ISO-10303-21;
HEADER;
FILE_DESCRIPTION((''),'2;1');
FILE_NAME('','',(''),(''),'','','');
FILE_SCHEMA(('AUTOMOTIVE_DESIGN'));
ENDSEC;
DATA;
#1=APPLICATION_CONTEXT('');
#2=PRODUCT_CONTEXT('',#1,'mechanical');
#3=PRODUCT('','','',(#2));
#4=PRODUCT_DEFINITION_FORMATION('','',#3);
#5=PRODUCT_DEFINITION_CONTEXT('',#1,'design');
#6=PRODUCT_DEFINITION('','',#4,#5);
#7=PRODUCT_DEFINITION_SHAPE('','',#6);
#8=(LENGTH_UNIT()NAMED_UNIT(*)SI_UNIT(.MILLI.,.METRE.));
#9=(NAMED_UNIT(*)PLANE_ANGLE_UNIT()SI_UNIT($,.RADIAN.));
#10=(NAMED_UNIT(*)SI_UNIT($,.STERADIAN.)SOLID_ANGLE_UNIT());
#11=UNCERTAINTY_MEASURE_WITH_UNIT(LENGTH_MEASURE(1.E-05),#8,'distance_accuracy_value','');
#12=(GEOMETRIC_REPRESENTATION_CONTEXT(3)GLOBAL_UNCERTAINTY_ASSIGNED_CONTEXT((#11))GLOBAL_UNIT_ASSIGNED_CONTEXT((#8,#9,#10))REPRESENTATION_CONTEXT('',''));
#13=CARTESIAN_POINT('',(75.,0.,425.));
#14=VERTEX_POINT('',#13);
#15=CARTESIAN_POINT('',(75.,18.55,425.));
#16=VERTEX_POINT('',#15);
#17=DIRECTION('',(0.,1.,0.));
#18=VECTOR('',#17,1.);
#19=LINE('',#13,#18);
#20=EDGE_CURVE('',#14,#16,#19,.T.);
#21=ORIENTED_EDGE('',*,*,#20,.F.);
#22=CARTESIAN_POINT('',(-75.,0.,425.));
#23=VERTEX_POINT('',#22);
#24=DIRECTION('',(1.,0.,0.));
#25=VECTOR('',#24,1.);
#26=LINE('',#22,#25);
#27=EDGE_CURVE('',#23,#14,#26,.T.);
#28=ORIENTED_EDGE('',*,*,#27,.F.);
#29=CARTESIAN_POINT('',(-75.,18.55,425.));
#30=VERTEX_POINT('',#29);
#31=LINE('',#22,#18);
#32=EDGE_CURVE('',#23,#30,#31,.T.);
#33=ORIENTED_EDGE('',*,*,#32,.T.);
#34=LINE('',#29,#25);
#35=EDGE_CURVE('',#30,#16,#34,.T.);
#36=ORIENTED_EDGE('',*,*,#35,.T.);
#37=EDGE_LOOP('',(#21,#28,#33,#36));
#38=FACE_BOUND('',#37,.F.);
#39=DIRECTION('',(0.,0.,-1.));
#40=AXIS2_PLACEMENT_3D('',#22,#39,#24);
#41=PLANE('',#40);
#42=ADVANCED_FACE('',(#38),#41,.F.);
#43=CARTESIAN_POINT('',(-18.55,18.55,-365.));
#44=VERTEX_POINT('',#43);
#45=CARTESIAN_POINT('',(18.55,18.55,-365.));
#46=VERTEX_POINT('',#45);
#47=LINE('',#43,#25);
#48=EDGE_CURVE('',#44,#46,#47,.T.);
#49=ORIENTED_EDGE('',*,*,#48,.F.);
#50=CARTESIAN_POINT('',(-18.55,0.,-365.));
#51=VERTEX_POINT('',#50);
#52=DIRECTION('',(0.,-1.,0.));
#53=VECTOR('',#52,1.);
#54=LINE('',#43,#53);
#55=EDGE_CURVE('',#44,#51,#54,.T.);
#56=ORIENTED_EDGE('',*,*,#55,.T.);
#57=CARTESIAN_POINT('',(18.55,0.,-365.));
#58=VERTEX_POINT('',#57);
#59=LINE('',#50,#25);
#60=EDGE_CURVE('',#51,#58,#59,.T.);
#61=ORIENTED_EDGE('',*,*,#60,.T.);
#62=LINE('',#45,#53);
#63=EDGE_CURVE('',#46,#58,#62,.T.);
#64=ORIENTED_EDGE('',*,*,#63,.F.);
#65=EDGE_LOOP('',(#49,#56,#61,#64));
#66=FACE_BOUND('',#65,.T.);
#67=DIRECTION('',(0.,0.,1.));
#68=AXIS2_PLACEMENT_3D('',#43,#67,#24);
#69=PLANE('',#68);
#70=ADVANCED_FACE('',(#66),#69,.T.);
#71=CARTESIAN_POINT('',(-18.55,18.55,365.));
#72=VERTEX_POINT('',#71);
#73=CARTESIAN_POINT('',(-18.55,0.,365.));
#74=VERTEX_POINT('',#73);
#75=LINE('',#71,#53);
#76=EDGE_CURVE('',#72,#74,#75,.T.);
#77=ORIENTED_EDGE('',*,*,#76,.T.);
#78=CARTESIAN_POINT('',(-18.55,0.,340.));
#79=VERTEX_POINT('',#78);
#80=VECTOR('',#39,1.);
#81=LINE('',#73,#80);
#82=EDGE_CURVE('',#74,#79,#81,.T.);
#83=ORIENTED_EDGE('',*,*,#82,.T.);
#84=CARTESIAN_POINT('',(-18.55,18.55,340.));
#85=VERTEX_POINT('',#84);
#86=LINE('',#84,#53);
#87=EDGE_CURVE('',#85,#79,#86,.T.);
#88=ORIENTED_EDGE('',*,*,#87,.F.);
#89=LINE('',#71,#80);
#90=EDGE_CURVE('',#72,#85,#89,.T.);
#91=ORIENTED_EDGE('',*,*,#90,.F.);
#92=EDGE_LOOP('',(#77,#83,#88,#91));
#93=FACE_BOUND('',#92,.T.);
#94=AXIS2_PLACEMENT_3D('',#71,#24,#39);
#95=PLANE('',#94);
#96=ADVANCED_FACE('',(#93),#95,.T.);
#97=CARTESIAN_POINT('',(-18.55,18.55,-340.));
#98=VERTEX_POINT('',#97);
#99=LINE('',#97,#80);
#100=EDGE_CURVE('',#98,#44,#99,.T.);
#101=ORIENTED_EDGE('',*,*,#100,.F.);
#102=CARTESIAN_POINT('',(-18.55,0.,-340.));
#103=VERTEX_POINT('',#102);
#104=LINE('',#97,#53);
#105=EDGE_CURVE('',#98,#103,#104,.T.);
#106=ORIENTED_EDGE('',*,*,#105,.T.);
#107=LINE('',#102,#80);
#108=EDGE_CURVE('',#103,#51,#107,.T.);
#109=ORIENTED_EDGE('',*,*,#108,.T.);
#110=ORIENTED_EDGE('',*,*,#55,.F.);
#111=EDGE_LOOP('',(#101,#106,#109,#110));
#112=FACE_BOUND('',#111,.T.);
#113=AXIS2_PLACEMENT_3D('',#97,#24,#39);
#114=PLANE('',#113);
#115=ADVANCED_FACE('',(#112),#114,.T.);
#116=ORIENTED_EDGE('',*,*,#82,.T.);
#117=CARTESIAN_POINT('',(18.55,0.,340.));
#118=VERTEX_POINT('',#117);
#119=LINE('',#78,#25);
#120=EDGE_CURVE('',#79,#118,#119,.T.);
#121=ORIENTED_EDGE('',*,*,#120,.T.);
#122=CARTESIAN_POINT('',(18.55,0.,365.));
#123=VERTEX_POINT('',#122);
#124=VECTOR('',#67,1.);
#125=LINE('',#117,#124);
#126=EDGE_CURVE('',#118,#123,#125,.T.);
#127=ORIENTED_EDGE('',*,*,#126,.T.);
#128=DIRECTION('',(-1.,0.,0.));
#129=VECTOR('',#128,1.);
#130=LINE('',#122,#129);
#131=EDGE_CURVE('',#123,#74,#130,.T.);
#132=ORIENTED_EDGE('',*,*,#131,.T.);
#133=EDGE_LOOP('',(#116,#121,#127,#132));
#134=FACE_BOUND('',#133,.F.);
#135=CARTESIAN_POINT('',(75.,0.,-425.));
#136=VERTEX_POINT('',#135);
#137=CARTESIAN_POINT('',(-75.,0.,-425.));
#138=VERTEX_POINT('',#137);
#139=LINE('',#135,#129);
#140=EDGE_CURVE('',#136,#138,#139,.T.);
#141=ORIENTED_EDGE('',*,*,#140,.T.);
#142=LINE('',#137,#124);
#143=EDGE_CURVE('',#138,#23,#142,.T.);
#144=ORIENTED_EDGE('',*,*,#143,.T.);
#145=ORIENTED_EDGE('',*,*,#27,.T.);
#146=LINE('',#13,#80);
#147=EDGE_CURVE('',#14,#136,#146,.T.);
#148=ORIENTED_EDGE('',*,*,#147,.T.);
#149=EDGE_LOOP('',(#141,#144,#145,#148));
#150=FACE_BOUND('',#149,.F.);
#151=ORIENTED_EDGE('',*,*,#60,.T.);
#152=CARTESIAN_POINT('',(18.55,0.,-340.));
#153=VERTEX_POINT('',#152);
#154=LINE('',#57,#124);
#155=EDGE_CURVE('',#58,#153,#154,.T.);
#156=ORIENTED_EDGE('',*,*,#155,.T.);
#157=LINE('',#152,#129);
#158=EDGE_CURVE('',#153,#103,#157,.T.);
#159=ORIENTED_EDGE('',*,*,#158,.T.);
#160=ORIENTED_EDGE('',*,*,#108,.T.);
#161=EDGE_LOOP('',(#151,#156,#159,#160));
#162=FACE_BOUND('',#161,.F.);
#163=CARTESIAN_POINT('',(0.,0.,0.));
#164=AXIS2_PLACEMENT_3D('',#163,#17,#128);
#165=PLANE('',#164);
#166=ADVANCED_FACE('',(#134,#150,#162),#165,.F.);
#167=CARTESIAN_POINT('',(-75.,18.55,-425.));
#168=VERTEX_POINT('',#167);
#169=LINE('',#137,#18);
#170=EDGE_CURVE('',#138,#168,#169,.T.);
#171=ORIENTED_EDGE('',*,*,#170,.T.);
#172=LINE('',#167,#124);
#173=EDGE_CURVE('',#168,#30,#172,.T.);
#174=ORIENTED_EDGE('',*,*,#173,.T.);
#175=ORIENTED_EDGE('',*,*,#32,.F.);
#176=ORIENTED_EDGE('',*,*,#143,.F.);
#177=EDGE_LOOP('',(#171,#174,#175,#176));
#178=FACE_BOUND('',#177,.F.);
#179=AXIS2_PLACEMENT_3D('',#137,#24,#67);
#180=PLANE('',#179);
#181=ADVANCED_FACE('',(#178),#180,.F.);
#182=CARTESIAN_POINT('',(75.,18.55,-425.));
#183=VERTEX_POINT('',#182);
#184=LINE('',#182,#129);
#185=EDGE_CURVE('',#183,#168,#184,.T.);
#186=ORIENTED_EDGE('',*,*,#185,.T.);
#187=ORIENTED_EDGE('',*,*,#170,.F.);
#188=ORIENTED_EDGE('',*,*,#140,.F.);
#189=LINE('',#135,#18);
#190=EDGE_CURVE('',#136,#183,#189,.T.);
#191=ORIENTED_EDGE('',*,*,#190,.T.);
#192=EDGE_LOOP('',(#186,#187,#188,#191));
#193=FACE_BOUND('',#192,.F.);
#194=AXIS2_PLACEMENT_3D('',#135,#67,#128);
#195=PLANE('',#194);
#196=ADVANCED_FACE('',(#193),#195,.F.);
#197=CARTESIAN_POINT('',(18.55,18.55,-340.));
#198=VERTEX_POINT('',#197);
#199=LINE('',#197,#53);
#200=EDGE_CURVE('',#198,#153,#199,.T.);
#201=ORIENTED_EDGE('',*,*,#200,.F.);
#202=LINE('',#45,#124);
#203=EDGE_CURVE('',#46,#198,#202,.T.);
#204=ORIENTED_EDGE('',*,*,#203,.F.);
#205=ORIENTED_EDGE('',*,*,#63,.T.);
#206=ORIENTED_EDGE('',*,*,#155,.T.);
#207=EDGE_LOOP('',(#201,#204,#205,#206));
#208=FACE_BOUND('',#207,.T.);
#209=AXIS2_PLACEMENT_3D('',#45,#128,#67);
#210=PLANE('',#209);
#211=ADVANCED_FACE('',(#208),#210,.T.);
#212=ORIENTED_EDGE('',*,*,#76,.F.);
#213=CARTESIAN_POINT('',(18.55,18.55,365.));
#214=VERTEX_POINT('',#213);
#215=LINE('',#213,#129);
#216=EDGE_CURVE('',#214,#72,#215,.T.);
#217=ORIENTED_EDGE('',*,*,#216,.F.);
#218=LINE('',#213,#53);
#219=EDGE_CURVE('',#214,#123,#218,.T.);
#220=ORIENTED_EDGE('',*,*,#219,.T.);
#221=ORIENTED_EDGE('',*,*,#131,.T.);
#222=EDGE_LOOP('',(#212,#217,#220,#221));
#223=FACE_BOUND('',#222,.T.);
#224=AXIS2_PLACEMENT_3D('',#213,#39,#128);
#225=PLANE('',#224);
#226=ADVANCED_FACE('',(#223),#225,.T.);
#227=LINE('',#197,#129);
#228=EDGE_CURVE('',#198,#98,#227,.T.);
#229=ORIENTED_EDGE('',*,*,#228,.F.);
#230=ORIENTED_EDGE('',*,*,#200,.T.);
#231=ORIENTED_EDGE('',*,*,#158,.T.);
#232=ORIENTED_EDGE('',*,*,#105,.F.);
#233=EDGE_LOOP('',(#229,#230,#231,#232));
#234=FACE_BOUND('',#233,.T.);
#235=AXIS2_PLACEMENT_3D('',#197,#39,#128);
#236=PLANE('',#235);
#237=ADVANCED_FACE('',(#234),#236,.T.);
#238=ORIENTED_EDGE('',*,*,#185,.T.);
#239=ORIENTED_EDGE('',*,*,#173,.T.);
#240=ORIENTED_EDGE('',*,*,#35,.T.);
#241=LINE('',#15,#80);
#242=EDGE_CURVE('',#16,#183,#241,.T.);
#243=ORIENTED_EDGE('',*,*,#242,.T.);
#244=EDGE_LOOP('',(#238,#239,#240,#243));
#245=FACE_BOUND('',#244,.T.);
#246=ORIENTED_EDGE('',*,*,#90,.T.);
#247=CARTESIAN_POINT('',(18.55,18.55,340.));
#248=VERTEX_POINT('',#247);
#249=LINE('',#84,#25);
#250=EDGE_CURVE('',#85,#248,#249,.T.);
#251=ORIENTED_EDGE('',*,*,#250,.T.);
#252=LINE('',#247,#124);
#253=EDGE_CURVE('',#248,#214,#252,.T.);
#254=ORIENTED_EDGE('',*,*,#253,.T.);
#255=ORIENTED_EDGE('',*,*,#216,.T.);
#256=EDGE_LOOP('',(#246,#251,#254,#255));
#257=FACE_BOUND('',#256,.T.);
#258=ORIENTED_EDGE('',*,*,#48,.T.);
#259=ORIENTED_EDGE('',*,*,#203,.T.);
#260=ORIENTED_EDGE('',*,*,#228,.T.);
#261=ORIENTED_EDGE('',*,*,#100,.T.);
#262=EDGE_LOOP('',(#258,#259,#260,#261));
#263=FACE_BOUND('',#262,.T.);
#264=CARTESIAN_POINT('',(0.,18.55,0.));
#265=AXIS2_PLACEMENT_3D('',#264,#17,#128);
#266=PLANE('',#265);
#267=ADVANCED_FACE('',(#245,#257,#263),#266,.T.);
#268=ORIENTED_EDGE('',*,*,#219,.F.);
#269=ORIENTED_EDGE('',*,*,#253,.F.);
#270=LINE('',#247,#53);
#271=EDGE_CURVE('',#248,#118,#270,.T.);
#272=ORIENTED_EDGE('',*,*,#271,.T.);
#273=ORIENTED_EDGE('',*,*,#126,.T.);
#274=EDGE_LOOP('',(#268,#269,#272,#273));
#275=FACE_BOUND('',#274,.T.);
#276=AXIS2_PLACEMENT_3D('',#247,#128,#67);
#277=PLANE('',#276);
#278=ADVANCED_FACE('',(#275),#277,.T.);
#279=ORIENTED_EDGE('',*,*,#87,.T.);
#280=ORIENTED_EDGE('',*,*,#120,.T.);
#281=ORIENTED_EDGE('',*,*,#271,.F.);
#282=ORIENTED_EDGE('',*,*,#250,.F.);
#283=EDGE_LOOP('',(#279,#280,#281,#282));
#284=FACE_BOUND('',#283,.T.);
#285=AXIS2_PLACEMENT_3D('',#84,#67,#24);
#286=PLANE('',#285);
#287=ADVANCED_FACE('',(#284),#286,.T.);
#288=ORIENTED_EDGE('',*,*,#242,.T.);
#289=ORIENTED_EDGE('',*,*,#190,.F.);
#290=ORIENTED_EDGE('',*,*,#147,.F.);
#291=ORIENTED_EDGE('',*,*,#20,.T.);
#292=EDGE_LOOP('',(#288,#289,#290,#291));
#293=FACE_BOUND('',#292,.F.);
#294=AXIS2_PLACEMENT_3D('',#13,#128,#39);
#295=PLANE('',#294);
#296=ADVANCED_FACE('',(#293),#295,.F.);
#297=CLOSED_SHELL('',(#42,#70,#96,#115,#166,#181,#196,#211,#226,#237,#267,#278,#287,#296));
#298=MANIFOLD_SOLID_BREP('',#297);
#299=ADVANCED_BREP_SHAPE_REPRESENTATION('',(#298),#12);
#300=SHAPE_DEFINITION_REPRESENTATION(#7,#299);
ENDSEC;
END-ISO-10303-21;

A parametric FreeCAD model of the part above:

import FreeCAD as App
import Part
import Sketcher
from FreeCAD import Vector


def add_polygon(sketch, points):
    """Adds a closed chain of lines whose ends are joined by coincident constraints."""
    first, n = sketch.GeometryCount, len(points)
    for a, b in zip(points, points[1:] + points[:1]):
        sketch.addGeometry(Part.LineSegment(App.Vector(*a, 0), App.Vector(*b, 0)), False)
    for i in range(n):
        sketch.addConstraint(Sketcher.Constraint("Coincident", first + i, 2, first + (i + 1) % n, 1))

doc = App.newDocument("Part")
body = doc.addObject("PartDesign::Body", "Body")

# Sketch on XZ plane
sketch1 = doc.addObject("Sketcher::SketchObject", "Sketch")
body.addObject(sketch1)
sketch1.AttachmentSupport = (doc.XZ_Plane, [""])
sketch1.MapMode = "FlatFace"
add_polygon(sketch1, [(75, 425), (75, -425), (-75, -425), (-75, 425)])  # lines 0-3
sketch1.addConstraint(Sketcher.Constraint("Vertical", 0))
sketch1.addConstraint(Sketcher.Constraint("Horizontal", 1))
sketch1.addConstraint(Sketcher.Constraint("Vertical", 2))
sketch1.addConstraint(Sketcher.Constraint("Horizontal", 3))
sketch1.addConstraint(Sketcher.Constraint("Symmetric", 0, 2, 2, 2, -1, 1))
sketch1.addConstraint(Sketcher.Constraint("DistanceX", 1, 2, 1, 1, 150.0))
sketch1.addConstraint(Sketcher.Constraint("DistanceY", 0, 2, 0, 1, 850.0))
pad1 = doc.addObject("PartDesign::Pad", "Pad")
body.addObject(pad1)
pad1.Profile = sketch1
pad1.Length = 18.55
pad1.Reversed = True

# Sketch on XZ plane
sketch2 = doc.addObject("Sketcher::SketchObject", "Sketch001")
body.addObject(sketch2)
sketch2.AttachmentSupport = (doc.XZ_Plane, [""])
sketch2.MapMode = "FlatFace"
sketch2.AttachmentOffset = App.Placement(Vector(0, 0, -18.55), App.Rotation())
add_polygon(sketch2, [(-19, 365), (19, 365), (19, 340), (-19, 340)])  # lines 0-3
add_polygon(sketch2, [(-19, -340), (19, -340), (19, -365), (-19, -365)])  # lines 4-7
sketch2.addConstraint(Sketcher.Constraint("Horizontal", 0))
sketch2.addConstraint(Sketcher.Constraint("Vertical", 1))
sketch2.addConstraint(Sketcher.Constraint("Horizontal", 2))
sketch2.addConstraint(Sketcher.Constraint("Vertical", 3))
sketch2.addConstraint(Sketcher.Constraint("Horizontal", 4))
sketch2.addConstraint(Sketcher.Constraint("Vertical", 5))
sketch2.addConstraint(Sketcher.Constraint("Horizontal", 6))
sketch2.addConstraint(Sketcher.Constraint("Vertical", 7))
sketch2.addConstraint(Sketcher.Constraint("Symmetric", 2, 2, 4, 2, -1, 1))
sketch2.addConstraint(Sketcher.Constraint("Symmetric", 0, 2, 6, 2, -1, 1))
sketch2.addConstraint(Sketcher.Constraint("Vertical", 1, 2, 4, 2))
sketch2.addConstraint(Sketcher.Constraint("DistanceY", 1, 2, 1, 1, 25.0))
sketch2.addConstraint(Sketcher.Constraint("DistanceX", 0, 1, 0, 2, 37.1))
sketch2.addConstraint(Sketcher.Constraint("DistanceY", 5, 2, 0, 2, 730.0))
pocket1 = doc.addObject("PartDesign::Pocket", "Pocket")
body.addObject(pocket1)
pocket1.Profile = sketch2
pocket1.Length = 18.55
pocket1.Reversed = True

doc.recompute()
